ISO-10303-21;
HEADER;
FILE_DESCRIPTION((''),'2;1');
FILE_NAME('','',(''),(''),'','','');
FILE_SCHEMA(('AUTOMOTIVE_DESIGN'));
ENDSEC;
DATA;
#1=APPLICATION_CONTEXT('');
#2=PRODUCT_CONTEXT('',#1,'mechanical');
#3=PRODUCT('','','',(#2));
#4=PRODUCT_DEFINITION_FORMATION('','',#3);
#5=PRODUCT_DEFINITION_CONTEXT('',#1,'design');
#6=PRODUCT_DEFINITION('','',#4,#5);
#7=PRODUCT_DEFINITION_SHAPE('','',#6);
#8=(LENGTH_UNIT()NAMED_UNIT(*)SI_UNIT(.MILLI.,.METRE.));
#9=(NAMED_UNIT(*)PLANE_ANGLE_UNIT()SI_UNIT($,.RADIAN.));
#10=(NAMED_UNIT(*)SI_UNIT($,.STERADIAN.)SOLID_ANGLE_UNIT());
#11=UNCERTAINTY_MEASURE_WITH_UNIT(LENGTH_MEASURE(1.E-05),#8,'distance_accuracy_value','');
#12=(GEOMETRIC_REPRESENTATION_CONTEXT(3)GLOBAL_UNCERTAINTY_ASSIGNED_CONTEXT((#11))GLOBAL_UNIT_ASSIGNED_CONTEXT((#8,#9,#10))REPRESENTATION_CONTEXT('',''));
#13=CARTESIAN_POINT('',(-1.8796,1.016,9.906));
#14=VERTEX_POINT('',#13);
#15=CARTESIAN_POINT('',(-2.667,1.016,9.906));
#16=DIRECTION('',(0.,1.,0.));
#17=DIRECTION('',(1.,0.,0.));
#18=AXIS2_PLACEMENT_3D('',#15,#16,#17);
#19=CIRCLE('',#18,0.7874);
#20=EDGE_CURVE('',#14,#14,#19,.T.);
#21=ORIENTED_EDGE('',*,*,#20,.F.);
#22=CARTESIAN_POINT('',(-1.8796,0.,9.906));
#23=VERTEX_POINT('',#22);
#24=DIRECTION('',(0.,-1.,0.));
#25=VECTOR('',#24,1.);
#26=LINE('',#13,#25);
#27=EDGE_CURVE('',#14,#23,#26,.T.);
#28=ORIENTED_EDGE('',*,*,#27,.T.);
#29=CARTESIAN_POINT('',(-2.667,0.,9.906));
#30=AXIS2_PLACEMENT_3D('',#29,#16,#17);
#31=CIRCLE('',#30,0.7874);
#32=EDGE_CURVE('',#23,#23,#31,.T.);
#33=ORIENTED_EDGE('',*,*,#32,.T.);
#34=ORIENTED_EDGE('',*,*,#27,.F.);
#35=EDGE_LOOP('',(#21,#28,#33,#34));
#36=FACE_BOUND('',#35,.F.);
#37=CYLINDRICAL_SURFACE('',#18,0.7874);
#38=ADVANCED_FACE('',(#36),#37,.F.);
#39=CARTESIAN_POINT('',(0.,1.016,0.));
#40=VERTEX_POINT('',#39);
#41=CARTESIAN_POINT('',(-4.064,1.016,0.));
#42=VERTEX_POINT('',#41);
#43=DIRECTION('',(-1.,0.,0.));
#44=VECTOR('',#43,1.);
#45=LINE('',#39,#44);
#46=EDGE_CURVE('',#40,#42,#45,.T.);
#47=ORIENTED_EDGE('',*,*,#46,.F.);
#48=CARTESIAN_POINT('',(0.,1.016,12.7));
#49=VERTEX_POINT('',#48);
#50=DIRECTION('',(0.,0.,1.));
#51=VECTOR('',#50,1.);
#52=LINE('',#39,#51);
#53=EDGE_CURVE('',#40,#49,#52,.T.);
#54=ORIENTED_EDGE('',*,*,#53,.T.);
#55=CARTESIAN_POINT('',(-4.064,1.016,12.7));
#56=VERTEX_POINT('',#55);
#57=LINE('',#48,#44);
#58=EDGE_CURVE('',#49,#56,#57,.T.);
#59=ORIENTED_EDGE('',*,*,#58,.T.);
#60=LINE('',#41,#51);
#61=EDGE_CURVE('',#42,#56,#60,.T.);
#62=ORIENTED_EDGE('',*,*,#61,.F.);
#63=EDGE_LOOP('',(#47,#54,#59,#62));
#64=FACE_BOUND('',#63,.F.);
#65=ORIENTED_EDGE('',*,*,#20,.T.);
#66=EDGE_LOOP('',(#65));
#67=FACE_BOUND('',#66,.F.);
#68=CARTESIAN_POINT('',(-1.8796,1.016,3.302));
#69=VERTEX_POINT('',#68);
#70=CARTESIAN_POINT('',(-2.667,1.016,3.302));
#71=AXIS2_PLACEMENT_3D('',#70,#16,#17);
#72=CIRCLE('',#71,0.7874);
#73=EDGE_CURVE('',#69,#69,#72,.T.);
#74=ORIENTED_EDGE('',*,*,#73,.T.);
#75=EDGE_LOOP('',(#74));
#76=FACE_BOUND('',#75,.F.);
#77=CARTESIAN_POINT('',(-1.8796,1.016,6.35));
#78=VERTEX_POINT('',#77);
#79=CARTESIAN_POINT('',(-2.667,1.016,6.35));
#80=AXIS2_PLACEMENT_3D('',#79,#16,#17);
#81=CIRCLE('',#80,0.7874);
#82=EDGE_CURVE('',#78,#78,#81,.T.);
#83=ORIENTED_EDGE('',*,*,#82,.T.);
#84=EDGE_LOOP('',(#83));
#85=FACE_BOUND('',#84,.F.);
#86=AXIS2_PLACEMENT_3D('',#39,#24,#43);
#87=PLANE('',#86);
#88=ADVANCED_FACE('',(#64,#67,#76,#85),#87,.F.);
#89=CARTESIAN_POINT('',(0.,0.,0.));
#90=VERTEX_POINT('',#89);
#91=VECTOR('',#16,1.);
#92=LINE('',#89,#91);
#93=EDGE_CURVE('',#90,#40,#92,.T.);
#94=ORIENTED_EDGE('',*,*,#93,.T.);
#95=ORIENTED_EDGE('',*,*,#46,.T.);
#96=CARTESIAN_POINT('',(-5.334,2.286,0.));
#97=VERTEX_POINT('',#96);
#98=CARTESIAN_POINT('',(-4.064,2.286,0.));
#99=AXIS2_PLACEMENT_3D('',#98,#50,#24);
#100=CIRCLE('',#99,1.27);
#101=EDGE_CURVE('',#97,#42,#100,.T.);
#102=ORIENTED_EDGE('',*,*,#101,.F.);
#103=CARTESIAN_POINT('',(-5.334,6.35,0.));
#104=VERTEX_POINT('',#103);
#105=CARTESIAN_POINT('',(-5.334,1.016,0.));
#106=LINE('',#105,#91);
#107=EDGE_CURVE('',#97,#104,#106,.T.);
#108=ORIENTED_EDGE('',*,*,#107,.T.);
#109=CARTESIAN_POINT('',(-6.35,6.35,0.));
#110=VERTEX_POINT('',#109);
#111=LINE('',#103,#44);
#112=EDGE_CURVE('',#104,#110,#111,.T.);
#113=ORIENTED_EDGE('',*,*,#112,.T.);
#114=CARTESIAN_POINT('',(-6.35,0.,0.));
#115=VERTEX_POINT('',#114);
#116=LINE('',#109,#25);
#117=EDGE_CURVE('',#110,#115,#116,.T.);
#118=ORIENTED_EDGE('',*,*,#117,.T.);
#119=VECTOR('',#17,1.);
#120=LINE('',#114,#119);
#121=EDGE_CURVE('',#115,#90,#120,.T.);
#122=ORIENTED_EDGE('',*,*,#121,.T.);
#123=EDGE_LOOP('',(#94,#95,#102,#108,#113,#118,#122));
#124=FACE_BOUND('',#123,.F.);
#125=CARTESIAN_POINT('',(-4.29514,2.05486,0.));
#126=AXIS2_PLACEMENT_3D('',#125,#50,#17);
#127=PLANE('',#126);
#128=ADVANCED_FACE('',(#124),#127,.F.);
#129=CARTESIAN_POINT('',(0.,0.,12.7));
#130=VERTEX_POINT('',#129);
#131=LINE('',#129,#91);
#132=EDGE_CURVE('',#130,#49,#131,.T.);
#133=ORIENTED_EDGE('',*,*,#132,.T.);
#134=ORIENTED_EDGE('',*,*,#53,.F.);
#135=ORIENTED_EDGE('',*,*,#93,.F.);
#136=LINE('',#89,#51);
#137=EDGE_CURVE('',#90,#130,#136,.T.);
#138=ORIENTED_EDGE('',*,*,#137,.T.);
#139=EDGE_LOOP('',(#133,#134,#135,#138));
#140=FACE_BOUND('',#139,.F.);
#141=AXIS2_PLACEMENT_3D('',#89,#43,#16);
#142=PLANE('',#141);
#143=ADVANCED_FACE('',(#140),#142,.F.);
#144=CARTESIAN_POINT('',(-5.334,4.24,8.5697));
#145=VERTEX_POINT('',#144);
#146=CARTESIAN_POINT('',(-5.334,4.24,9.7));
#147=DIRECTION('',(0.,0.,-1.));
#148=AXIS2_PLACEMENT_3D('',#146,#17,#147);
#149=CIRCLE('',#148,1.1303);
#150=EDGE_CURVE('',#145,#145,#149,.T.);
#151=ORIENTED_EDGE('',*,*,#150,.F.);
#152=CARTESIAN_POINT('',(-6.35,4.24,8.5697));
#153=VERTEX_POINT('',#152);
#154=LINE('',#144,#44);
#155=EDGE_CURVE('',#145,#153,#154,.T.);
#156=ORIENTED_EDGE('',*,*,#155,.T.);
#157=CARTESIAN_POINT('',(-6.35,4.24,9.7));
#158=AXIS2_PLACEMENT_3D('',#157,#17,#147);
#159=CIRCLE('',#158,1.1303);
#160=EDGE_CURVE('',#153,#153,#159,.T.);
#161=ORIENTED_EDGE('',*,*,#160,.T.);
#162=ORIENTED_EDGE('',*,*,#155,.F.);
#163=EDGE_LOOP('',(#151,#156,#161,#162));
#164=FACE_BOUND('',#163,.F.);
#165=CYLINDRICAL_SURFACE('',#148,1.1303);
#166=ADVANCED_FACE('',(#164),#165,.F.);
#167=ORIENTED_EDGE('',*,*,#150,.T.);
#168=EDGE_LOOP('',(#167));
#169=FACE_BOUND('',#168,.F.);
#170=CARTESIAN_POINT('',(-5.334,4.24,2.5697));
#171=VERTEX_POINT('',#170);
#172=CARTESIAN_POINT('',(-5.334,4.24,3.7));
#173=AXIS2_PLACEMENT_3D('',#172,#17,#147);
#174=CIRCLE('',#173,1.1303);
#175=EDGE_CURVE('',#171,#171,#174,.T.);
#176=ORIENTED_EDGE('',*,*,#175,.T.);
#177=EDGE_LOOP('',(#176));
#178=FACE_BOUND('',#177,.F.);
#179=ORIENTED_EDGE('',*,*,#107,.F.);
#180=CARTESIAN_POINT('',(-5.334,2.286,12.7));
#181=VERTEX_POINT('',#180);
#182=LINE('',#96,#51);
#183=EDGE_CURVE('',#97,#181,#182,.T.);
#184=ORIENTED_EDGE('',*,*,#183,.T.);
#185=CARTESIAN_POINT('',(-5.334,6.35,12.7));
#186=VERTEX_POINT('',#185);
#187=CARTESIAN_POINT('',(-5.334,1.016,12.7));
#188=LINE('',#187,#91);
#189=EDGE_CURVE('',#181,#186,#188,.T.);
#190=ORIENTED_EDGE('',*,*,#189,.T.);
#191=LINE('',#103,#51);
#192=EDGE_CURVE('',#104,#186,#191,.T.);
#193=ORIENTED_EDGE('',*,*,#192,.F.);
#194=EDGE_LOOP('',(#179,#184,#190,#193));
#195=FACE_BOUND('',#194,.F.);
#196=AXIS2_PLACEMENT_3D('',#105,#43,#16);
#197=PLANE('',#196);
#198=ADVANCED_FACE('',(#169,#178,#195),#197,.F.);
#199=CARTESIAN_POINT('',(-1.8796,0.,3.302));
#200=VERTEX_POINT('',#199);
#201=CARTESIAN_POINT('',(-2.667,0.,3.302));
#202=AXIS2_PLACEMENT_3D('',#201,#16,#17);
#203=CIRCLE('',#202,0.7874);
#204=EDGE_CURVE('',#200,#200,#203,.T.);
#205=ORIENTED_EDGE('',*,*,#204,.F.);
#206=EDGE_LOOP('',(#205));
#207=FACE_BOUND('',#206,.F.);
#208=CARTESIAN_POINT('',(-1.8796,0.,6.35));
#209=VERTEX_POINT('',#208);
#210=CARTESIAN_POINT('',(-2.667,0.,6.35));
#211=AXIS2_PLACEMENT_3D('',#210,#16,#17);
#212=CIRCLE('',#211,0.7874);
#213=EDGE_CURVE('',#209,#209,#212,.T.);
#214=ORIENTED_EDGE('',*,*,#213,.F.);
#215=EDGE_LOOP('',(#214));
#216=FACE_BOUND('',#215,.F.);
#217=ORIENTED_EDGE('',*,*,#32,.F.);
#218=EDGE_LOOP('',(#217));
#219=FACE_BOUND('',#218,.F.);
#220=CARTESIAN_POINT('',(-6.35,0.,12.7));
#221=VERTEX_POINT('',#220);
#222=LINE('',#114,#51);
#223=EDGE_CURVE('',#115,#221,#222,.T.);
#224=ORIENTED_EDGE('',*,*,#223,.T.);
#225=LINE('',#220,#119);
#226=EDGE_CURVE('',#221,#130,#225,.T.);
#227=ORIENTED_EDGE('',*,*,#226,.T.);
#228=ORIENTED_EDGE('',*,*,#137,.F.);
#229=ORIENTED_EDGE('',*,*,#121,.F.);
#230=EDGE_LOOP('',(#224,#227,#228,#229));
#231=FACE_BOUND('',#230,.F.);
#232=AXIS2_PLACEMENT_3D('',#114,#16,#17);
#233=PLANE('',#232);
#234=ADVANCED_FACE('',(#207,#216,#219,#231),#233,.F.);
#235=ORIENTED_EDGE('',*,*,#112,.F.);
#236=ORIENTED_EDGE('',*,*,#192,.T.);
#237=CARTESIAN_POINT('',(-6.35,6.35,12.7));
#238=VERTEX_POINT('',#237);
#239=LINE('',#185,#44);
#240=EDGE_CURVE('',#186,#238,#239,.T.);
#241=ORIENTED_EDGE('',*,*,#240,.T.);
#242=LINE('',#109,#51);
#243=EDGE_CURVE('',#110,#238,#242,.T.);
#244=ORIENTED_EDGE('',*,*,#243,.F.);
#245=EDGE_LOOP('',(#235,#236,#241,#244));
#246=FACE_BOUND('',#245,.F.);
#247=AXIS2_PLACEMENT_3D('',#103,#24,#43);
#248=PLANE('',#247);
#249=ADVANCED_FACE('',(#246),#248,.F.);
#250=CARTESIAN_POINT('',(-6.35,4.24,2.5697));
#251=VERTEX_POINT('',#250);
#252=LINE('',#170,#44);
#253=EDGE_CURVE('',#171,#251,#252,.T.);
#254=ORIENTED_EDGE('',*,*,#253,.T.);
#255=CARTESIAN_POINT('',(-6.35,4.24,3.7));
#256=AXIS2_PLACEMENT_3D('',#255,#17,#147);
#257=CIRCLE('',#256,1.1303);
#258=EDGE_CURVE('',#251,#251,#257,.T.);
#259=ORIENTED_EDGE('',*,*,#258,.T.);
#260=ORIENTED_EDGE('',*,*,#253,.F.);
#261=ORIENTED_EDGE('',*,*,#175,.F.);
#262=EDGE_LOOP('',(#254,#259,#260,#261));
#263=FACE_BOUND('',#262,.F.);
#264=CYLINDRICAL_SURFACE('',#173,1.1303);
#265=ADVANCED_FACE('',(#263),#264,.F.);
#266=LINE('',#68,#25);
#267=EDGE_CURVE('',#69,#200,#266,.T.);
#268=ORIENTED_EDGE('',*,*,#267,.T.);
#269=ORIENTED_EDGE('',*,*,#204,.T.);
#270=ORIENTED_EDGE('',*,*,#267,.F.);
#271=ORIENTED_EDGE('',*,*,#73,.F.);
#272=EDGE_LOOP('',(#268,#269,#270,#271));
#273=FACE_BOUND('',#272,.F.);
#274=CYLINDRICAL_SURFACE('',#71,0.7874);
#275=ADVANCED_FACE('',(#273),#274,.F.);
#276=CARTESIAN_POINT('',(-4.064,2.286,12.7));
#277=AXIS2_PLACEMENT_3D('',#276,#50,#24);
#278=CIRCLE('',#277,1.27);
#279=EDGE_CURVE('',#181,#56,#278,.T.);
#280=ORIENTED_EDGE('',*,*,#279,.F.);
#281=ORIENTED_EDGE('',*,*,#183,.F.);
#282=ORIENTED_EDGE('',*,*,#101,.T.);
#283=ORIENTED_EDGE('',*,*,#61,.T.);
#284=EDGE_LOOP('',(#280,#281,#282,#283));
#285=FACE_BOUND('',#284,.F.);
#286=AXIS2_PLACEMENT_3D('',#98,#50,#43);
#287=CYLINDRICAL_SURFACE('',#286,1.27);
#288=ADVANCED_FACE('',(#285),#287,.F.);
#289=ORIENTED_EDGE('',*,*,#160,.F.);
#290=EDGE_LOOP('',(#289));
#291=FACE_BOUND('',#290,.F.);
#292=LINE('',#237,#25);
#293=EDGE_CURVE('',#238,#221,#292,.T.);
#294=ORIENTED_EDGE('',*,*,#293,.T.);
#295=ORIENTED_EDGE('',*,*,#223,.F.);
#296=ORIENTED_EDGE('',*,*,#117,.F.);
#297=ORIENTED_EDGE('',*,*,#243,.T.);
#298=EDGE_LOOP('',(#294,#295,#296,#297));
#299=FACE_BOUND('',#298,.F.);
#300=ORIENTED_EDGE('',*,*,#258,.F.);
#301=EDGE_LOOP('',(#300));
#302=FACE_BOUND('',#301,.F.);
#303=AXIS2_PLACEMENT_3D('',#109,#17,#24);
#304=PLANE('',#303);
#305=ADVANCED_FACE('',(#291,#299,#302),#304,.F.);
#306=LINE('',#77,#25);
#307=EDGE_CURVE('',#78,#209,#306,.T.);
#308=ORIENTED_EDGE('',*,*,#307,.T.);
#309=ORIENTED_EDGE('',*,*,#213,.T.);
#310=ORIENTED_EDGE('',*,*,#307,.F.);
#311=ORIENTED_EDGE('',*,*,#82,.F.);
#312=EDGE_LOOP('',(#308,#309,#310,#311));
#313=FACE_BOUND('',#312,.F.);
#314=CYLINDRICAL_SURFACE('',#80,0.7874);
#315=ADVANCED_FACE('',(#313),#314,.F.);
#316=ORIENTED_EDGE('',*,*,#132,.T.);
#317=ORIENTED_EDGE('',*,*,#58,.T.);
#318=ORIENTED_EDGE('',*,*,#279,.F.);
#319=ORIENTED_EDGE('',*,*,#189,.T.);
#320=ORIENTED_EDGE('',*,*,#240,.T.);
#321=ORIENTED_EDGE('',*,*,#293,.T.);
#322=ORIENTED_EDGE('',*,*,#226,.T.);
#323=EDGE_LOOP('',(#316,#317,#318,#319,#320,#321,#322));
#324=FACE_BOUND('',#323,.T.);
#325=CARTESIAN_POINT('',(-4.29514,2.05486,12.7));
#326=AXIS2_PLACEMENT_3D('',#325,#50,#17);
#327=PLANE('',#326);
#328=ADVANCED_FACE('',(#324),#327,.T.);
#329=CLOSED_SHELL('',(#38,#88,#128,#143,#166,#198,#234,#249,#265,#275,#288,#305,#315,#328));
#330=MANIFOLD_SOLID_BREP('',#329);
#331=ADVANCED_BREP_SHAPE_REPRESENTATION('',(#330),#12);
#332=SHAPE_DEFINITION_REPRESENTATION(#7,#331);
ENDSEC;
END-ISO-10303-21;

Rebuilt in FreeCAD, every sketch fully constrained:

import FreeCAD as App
import Part
import Sketcher
Q = App.Units.Quantity


def edges_at(feature, points):
    """Names of the edges that pass closest to the given points."""
    edges = feature.Shape.Edges
    near = lambda p: min(range(len(edges)), key=lambda i: edges[i].distToShape(Part.Vertex(*p))[0])
    return sorted({f"Edge{near(p) + 1}" for p in points})


def add_polygon(sketch, points):
    """Adds a closed chain of lines whose ends are joined by coincident constraints."""
    first, n = sketch.GeometryCount, len(points)
    for a, b in zip(points, points[1:] + points[:1]):
        sketch.addGeometry(Part.LineSegment(App.Vector(*a, 0), App.Vector(*b, 0)), False)
    for i in range(n):
        sketch.addConstraint(Sketcher.Constraint("Coincident", first + i, 2, first + (i + 1) % n, 1))

doc = App.newDocument("Part")
params = doc.addObject("Spreadsheet::Sheet", "Params")
for row, (alias, value) in enumerate([
    ("sketch1_width", "0.25 in"),
    ("sketch1_width2", "0.21 in"),
    ("pad1_length", "0.5 in"),
    ("sketch2_diameter", "0.062 in"),
    ("pocket1_length", "0.1 in"),
    ("fillet_radius", "0.05 in"),
    ("sketch3_diameter", "0.089 in"),
    ("sketch4_diameter", "0.089 in"),
], start=1):
    params.set(f"A{row}", alias)
    params.set(f"B{row}", "=" + value)
    params.setAlias(f"B{row}", alias)

body = doc.addObject("PartDesign::Body", "Body")

sketch1 = body.newObject("Sketcher::SketchObject", "Sketch")
sketch1.AttachmentSupport = (doc.getObject("XY_Plane"), [""])
sketch1.MapMode = "FlatFace"
add_polygon(sketch1, [(-6.35, 6.35), (-6.35, 0), (0, 0), (0, 1.016), (-5.334, 1.016), (-5.334, 6.35)])
sketch1.addConstraint(Sketcher.Constraint("Vertical", 0))
sketch1.addConstraint(Sketcher.Constraint("Horizontal", 1))
sketch1.addConstraint(Sketcher.Constraint("Vertical", 2))
sketch1.addConstraint(Sketcher.Constraint("Horizontal", 3))
sketch1.addConstraint(Sketcher.Constraint("Vertical", 4))
sketch1.addConstraint(Sketcher.Constraint("Horizontal", 5))
sketch1.addConstraint(Sketcher.Constraint("Coincident", 1, 2, -1, 1))
sketch1.addConstraint(Sketcher.Constraint("Equal", 1, 0))
sketch1.addConstraint(Sketcher.Constraint("Equal", 5, 2))
sketch1.addConstraint(Sketcher.Constraint("DistanceX", 1, 1, 1, 2, Q("0.25 in")))
sketch1.addConstraint(Sketcher.Constraint("DistanceX", 3, 2, 3, 1, Q("0.21 in")))
sketch1.setExpression("Constraints[15]", "Params.sketch1_width")
sketch1.setExpression("Constraints[16]", "Params.sketch1_width2")
pad1 = body.newObject("PartDesign::Pad", "Pad")
pad1.Profile = sketch1
pad1.setExpression("Length", "Params.pad1_length")

sketch2 = body.newObject("Sketcher::SketchObject", "Sketch001")
sketch2.AttachmentSupport = (doc.getObject("XZ_Plane"), [""])
sketch2.MapMode = "FlatFace"
sketch2.AttachmentOffset = App.Placement(App.Vector(0, 0, -0.04 * 25.4), App.Rotation())
sketch2.addGeometry(Part.Circle(App.Vector(-2.667, 9.906, 0), App.Vector(0, 0, 1), 0.7874), False)
sketch2.addGeometry(Part.Circle(App.Vector(-2.667, 6.35, 0), App.Vector(0, 0, 1), 0.7874), False)
sketch2.addGeometry(Part.Circle(App.Vector(-2.667, 3.302, 0), App.Vector(0, 0, 1), 0.7874), False)
sketch2.addConstraint(Sketcher.Constraint("Equal", 0, 1))
sketch2.addConstraint(Sketcher.Constraint("Equal", 1, 2))
sketch2.addConstraint(Sketcher.Constraint("Vertical", 0, 3, 1, 3))
sketch2.addConstraint(Sketcher.Constraint("Vertical", 1, 3, 2, 3))
sketch2.addConstraint(Sketcher.Constraint("Diameter", 0, Q("0.062 in")))
sketch2.addConstraint(Sketcher.Constraint("DistanceY", -1, 1, 0, 3, Q("0.39 in")))
sketch2.addConstraint(Sketcher.Constraint("DistanceY", -1, 1, 1, 3, Q("0.25 in")))
sketch2.addConstraint(Sketcher.Constraint("DistanceY", -1, 1, 2, 3, Q("0.13 in")))
sketch2.addConstraint(Sketcher.Constraint("DistanceX", 0, 3, -1, 1, Q("0.105 in")))
sketch2.setExpression("Constraints[4]", "Params.sketch2_diameter")
pocket1 = body.newObject("PartDesign::Pocket", "Pocket")
pocket1.Profile = sketch2
pocket1.setExpression("Length", "Params.pocket1_length")
pocket1.Reversed = True
doc.recompute()

fillet = body.newObject("PartDesign::Fillet", "Fillet")
fillet.Base = (pocket1, edges_at(pocket1, [(-5.334, 1.016, 6.35)]))
fillet.setExpression("Radius", "Params.fillet_radius")

sketch3 = body.newObject("Sketcher::SketchObject", "Sketch002")
sketch3.AttachmentSupport = (doc.getObject("YZ_Plane"), [""])
sketch3.MapMode = "FlatFace"
sketch3.AttachmentOffset = App.Placement(App.Vector(0, 0, -0.21 * 25.4), App.Rotation())
sketch3.addGeometry(Part.Circle(App.Vector(4.24, 9.7, 0), App.Vector(0, 0, 1), 1.1303), False)
sketch3.addConstraint(Sketcher.Constraint("Diameter", 0, Q("0.089 in")))
sketch3.addConstraint(Sketcher.Constraint("DistanceX", -1, 1, 0, 3, 4.24))
sketch3.addConstraint(Sketcher.Constraint("DistanceY", -1, 1, 0, 3, 9.7))
sketch3.setExpression("Constraints[0]", "Params.sketch3_diameter")
pocket2 = body.newObject("PartDesign::Pocket", "Pocket001")
pocket2.Profile = sketch3
pocket2.Type = "UpToFirst"

sketch4 = body.newObject("Sketcher::SketchObject", "Sketch003")
sketch4.AttachmentSupport = (doc.getObject("YZ_Plane"), [""])
sketch4.MapMode = "FlatFace"
sketch4.AttachmentOffset = App.Placement(App.Vector(0, 0, -0.21 * 25.4), App.Rotation())
sketch4.addGeometry(Part.Circle(App.Vector(4.24, 3.7, 0), App.Vector(0, 0, 1), 1.1303), False)
sketch4.addConstraint(Sketcher.Constraint("Diameter", 0, Q("0.089 in")))
sketch4.addConstraint(Sketcher.Constraint("DistanceX", -1, 1, 0, 3, 4.24))
sketch4.addConstraint(Sketcher.Constraint("DistanceY", -1, 1, 0, 3, 3.7))
sketch4.setExpression("Constraints[0]", "Params.sketch4_diameter")
pocket3 = body.newObject("PartDesign::Pocket", "Pocket002")
pocket3.Profile = sketch4
pocket3.Type = "UpToFirst"

doc.recompute()
